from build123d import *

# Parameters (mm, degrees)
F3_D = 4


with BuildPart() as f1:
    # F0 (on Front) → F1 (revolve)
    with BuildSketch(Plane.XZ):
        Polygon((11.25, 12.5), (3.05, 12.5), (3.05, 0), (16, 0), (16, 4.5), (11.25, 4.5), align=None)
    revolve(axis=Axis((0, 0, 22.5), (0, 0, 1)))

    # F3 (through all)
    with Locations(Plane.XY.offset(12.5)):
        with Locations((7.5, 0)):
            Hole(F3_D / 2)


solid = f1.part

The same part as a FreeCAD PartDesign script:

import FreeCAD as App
import Part
import Sketcher

V = App.Vector

doc = App.newDocument("Part")
body = doc.addObject("PartDesign::Body", "Body")

# Sketch on XZ plane
sketch1 = body.newObject("Sketcher::SketchObject", "Sketch")
sketch1.AttachmentSupport = (doc.getObject("XZ_Plane"), [""])
sketch1.MapMode = "FlatFace"
sketch1.addGeometry(Part.LineSegment(V(11.25, 12.5, 0), V(3.05, 12.5, 0)), False)
sketch1.addGeometry(Part.LineSegment(V(3.05, 12.5, 0), V(3.05, 0, 0)), False)
sketch1.addGeometry(Part.LineSegment(V(3.05, 0, 0), V(16, 0, 0)), False)
sketch1.addGeometry(Part.LineSegment(V(16, 0, 0), V(16, 4.5, 0)), False)
sketch1.addGeometry(Part.LineSegment(V(16, 4.5, 0), V(11.25, 4.5, 0)), False)
sketch1.addGeometry(Part.LineSegment(V(11.25, 4.5, 0), V(11.25, 12.5, 0)), False)
sketch1.addConstraint(Sketcher.Constraint("Coincident", 0, 2, 1, 1))
sketch1.addConstraint(Sketcher.Constraint("Coincident", 1, 2, 2, 1))
sketch1.addConstraint(Sketcher.Constraint("Coincident", 2, 2, 3, 1))
sketch1.addConstraint(Sketcher.Constraint("Coincident", 3, 2, 4, 1))
sketch1.addConstraint(Sketcher.Constraint("Coincident", 4, 2, 5, 1))
sketch1.addConstraint(Sketcher.Constraint("Coincident", 5, 2, 0, 1))
sketch1.addConstraint(Sketcher.Constraint("Horizontal", 0))
sketch1.addConstraint(Sketcher.Constraint("Vertical", 1))
sketch1.addConstraint(Sketcher.Constraint("Horizontal", 2))
sketch1.addConstraint(Sketcher.Constraint("Vertical", 3))
sketch1.addConstraint(Sketcher.Constraint("Horizontal", 4))
sketch1.addConstraint(Sketcher.Constraint("Vertical", 5))
sketch1.addConstraint(Sketcher.Constraint("PointOnObject", 1, 2, -1))
sketch1.addConstraint(Sketcher.Constraint("DistanceY", 5, 1, 5, 2, 8.0))
sketch1.addConstraint(Sketcher.Constraint("DistanceX", 0, 2, 0, 1, 8.2))
sketch1.addConstraint(Sketcher.Constraint("DistanceY", 1, 2, 1, 1, 12.5))
sketch1.addConstraint(Sketcher.Constraint("DistanceX", -1, 1, 2, 2, 16.0))
sketch1.addConstraint(Sketcher.Constraint("DistanceX", 2, 1, 2, 2, 12.95))
revolution = body.newObject("PartDesign::Revolution", "Revolution")
revolution.Profile = sketch1
revolution.ReferenceAxis = (sketch1, ["V_Axis"])
revolution.Angle = 360

# Sketch on XY plane
sketch2 = body.newObject("Sketcher::SketchObject", "Sketch001")
sketch2.AttachmentSupport = (doc.getObject("XY_Plane"), [""])
sketch2.MapMode = "FlatFace"
sketch2.AttachmentOffset = App.Placement(V(0, 0, 12.5), App.Rotation())
sketch2.addGeometry(Part.Circle(V(7.5, 0, 0), V(0, 0, 1), 2), False)
sketch2.addConstraint(Sketcher.Constraint("PointOnObject", 0, 3, -1))
sketch2.addConstraint(Sketcher.Constraint("Diameter", 0, 4.0))
sketch2.addConstraint(Sketcher.Constraint("DistanceX", -1, 1, 0, 3, 7.5))
doc.recompute()
hole = body.newObject("PartDesign::Hole", "Hole")
hole.Profile = sketch2
hole.ThreadType = "None"
hole.Diameter = 4
hole.DepthType = "ThroughAll"

doc.recompute()
